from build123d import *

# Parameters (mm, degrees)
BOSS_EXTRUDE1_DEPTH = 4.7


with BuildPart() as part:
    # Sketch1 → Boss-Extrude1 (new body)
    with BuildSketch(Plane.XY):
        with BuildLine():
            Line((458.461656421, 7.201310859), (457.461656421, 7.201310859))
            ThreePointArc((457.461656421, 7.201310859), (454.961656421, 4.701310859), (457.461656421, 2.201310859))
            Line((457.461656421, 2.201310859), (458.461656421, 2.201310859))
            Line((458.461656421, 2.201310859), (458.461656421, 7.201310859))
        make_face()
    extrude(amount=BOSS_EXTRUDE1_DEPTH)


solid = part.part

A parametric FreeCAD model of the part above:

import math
import FreeCAD as App
import Part
import Sketcher
Q = App.Units.Quantity

doc = App.newDocument("Part")
body = doc.addObject("PartDesign::Body", "Body")

sketch1 = body.newObject("Sketcher::SketchObject", "Sketch")
sketch1.AttachmentSupport = (doc.getObject("XY_Plane"), [""])
sketch1.MapMode = "FlatFace"
sketch1.addGeometry(Part.LineSegment(App.Vector(458.5, 7.2, 0), App.Vector(457.5, 7.2, 0)), False)
sketch1.addGeometry(Part.ArcOfCircle(Part.Circle(App.Vector(457.5, 4.7, 0), App.Vector(0, 0, 1), 2.5), math.radians(90), math.radians(270)), False)
sketch1.addGeometry(Part.LineSegment(App.Vector(457.5, 2.2, 0), App.Vector(458.5, 2.2, 0)), False)
sketch1.addGeometry(Part.LineSegment(App.Vector(458.5, 2.2, 0), App.Vector(458.5, 7.2, 0)), False)
sketch1.addConstraint(Sketcher.Constraint("Tangent", 0, 2, 1, 1))
sketch1.addConstraint(Sketcher.Constraint("Tangent", 1, 2, 2, 1))
sketch1.addConstraint(Sketcher.Constraint("Coincident", 2, 2, 3, 1))
sketch1.addConstraint(Sketcher.Constraint("Coincident", 3, 2, 0, 1))
sketch1.addConstraint(Sketcher.Constraint("Horizontal", 0))
sketch1.addConstraint(Sketcher.Constraint("Horizontal", 2))
sketch1.addConstraint(Sketcher.Constraint("Vertical", 3))
sketch1.addConstraint(Sketcher.Constraint("Radius", 1, Q("2.5 mm")))
sketch1.addConstraint(Sketcher.Constraint("DistanceX", 0, 2, 0, 1, Q("1 mm")))
sketch1.addConstraint(Sketcher.Constraint("DistanceY", -1, 1, 1, 3, Q("4.701311 mm")))
sketch1.addConstraint(Sketcher.Constraint("DistanceX", -1, 1, 1, 3, Q("457.461656 mm")))
pad1 = body.newObject("PartDesign::Pad", "Pad")
pad1.Profile = sketch1
pad1.Length = 4.7

doc.recompute()
